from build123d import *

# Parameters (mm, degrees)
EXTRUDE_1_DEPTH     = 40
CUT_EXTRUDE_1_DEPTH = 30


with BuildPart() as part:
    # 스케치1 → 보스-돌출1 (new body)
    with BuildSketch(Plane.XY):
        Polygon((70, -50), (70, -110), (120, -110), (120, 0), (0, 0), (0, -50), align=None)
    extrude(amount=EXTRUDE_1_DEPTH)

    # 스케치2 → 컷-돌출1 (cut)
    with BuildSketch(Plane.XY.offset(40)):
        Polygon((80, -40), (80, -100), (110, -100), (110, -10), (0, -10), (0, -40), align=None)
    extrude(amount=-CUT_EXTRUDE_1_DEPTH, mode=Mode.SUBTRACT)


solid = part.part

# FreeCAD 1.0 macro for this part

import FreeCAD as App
import Part
import Sketcher

V = App.Vector
Q = App.Units.Quantity

doc = App.newDocument("Part")
body = doc.addObject("PartDesign::Body", "Body")

# Sketch on XY plane
sketch1 = doc.addObject("Sketcher::SketchObject", "Sketch")
body.addObject(sketch1)
sketch1.AttachmentSupport = (doc.XY_Plane, [""])
sketch1.MapMode = "FlatFace"
sketch1.addGeometry([
    Part.LineSegment(V(70, -50, 0), V(70, -110, 0)),  # 0
    Part.LineSegment(V(70, -110, 0), V(120, -110, 0)),  # 1
    Part.LineSegment(V(120, -110, 0), V(120, 0, 0)),  # 2
    Part.LineSegment(V(120, 0, 0), V(0, 0, 0)),  # 3
    Part.LineSegment(V(0, 0, 0), V(0, -50, 0)),  # 4
    Part.LineSegment(V(0, -50, 0), V(70, -50, 0)),  # 5
], False)
sketch1.addConstraint([
    Sketcher.Constraint("Coincident", 0, 2, 1, 1),
    Sketcher.Constraint("Coincident", 1, 2, 2, 1),
    Sketcher.Constraint("Coincident", 2, 2, 3, 1),
    Sketcher.Constraint("Coincident", 3, 2, 4, 1),
    Sketcher.Constraint("Coincident", 4, 2, 5, 1),
    Sketcher.Constraint("Coincident", 5, 2, 0, 1),
    Sketcher.Constraint("Vertical", 0),
    Sketcher.Constraint("Horizontal", 1),
    Sketcher.Constraint("Vertical", 2),
    Sketcher.Constraint("Horizontal", 3),
    Sketcher.Constraint("Vertical", 4),
    Sketcher.Constraint("Horizontal", 5),
    Sketcher.Constraint("Coincident", 3, 2, -1, 1),
    Sketcher.Constraint("Equal", 1, 4),
    Sketcher.Constraint("DistanceX", 1, 1, 1, 2, Q("50 mm")),
    Sketcher.Constraint("DistanceX", 3, 2, 3, 1, Q("120 mm")),
    Sketcher.Constraint("DistanceY", 0, 2, 0, 1, Q("60 mm")),
])
pad1 = doc.addObject("PartDesign::Pad", "Pad")
body.addObject(pad1)
pad1.Profile = sketch1
pad1.Length = 40

# Sketch on XY plane
sketch2 = doc.addObject("Sketcher::SketchObject", "Sketch001")
body.addObject(sketch2)
sketch2.AttachmentSupport = (doc.XY_Plane, [""])
sketch2.MapMode = "FlatFace"
sketch2.AttachmentOffset = App.Placement(V(0, 0, 40), App.Rotation())
sketch2.addGeometry([
    Part.LineSegment(V(80, -40, 0), V(80, -100, 0)),  # 0
    Part.LineSegment(V(80, -100, 0), V(110, -100, 0)),  # 1
    Part.LineSegment(V(110, -100, 0), V(110, -10, 0)),  # 2
    Part.LineSegment(V(110, -10, 0), V(0, -10, 0)),  # 3
    Part.LineSegment(V(0, -10, 0), V(0, -40, 0)),  # 4
    Part.LineSegment(V(0, -40, 0), V(80, -40, 0)),  # 5
], False)
sketch2.addConstraint([
    Sketcher.Constraint("Coincident", 0, 2, 1, 1),
    Sketcher.Constraint("Coincident", 1, 2, 2, 1),
    Sketcher.Constraint("Coincident", 2, 2, 3, 1),
    Sketcher.Constraint("Coincident", 3, 2, 4, 1),
    Sketcher.Constraint("Coincident", 4, 2, 5, 1),
    Sketcher.Constraint("Coincident", 5, 2, 0, 1),
    Sketcher.Constraint("Vertical", 0),
    Sketcher.Constraint("Horizontal", 1),
    Sketcher.Constraint("Vertical", 2),
    Sketcher.Constraint("Horizontal", 3),
    Sketcher.Constraint("Vertical", 4),
    Sketcher.Constraint("Horizontal", 5),
    Sketcher.Constraint("PointOnObject", 3, 2, -2),
    Sketcher.Constraint("Equal", 1, 4),
    Sketcher.Constraint("DistanceX", 1, 1, 1, 2, Q("30 mm")),
    Sketcher.Constraint("DistanceX", 3, 2, 3, 1, Q("110 mm")),
    Sketcher.Constraint("DistanceY", 0, 2, 0, 1, Q("60 mm")),
    Sketcher.Constraint("DistanceY", 0, 2, -1, 1, Q("100 mm")),
])
pocket1 = doc.addObject("PartDesign::Pocket", "Pocket")
body.addObject(pocket1)
pocket1.Profile = sketch2
pocket1.Length = 30

doc.recompute()
